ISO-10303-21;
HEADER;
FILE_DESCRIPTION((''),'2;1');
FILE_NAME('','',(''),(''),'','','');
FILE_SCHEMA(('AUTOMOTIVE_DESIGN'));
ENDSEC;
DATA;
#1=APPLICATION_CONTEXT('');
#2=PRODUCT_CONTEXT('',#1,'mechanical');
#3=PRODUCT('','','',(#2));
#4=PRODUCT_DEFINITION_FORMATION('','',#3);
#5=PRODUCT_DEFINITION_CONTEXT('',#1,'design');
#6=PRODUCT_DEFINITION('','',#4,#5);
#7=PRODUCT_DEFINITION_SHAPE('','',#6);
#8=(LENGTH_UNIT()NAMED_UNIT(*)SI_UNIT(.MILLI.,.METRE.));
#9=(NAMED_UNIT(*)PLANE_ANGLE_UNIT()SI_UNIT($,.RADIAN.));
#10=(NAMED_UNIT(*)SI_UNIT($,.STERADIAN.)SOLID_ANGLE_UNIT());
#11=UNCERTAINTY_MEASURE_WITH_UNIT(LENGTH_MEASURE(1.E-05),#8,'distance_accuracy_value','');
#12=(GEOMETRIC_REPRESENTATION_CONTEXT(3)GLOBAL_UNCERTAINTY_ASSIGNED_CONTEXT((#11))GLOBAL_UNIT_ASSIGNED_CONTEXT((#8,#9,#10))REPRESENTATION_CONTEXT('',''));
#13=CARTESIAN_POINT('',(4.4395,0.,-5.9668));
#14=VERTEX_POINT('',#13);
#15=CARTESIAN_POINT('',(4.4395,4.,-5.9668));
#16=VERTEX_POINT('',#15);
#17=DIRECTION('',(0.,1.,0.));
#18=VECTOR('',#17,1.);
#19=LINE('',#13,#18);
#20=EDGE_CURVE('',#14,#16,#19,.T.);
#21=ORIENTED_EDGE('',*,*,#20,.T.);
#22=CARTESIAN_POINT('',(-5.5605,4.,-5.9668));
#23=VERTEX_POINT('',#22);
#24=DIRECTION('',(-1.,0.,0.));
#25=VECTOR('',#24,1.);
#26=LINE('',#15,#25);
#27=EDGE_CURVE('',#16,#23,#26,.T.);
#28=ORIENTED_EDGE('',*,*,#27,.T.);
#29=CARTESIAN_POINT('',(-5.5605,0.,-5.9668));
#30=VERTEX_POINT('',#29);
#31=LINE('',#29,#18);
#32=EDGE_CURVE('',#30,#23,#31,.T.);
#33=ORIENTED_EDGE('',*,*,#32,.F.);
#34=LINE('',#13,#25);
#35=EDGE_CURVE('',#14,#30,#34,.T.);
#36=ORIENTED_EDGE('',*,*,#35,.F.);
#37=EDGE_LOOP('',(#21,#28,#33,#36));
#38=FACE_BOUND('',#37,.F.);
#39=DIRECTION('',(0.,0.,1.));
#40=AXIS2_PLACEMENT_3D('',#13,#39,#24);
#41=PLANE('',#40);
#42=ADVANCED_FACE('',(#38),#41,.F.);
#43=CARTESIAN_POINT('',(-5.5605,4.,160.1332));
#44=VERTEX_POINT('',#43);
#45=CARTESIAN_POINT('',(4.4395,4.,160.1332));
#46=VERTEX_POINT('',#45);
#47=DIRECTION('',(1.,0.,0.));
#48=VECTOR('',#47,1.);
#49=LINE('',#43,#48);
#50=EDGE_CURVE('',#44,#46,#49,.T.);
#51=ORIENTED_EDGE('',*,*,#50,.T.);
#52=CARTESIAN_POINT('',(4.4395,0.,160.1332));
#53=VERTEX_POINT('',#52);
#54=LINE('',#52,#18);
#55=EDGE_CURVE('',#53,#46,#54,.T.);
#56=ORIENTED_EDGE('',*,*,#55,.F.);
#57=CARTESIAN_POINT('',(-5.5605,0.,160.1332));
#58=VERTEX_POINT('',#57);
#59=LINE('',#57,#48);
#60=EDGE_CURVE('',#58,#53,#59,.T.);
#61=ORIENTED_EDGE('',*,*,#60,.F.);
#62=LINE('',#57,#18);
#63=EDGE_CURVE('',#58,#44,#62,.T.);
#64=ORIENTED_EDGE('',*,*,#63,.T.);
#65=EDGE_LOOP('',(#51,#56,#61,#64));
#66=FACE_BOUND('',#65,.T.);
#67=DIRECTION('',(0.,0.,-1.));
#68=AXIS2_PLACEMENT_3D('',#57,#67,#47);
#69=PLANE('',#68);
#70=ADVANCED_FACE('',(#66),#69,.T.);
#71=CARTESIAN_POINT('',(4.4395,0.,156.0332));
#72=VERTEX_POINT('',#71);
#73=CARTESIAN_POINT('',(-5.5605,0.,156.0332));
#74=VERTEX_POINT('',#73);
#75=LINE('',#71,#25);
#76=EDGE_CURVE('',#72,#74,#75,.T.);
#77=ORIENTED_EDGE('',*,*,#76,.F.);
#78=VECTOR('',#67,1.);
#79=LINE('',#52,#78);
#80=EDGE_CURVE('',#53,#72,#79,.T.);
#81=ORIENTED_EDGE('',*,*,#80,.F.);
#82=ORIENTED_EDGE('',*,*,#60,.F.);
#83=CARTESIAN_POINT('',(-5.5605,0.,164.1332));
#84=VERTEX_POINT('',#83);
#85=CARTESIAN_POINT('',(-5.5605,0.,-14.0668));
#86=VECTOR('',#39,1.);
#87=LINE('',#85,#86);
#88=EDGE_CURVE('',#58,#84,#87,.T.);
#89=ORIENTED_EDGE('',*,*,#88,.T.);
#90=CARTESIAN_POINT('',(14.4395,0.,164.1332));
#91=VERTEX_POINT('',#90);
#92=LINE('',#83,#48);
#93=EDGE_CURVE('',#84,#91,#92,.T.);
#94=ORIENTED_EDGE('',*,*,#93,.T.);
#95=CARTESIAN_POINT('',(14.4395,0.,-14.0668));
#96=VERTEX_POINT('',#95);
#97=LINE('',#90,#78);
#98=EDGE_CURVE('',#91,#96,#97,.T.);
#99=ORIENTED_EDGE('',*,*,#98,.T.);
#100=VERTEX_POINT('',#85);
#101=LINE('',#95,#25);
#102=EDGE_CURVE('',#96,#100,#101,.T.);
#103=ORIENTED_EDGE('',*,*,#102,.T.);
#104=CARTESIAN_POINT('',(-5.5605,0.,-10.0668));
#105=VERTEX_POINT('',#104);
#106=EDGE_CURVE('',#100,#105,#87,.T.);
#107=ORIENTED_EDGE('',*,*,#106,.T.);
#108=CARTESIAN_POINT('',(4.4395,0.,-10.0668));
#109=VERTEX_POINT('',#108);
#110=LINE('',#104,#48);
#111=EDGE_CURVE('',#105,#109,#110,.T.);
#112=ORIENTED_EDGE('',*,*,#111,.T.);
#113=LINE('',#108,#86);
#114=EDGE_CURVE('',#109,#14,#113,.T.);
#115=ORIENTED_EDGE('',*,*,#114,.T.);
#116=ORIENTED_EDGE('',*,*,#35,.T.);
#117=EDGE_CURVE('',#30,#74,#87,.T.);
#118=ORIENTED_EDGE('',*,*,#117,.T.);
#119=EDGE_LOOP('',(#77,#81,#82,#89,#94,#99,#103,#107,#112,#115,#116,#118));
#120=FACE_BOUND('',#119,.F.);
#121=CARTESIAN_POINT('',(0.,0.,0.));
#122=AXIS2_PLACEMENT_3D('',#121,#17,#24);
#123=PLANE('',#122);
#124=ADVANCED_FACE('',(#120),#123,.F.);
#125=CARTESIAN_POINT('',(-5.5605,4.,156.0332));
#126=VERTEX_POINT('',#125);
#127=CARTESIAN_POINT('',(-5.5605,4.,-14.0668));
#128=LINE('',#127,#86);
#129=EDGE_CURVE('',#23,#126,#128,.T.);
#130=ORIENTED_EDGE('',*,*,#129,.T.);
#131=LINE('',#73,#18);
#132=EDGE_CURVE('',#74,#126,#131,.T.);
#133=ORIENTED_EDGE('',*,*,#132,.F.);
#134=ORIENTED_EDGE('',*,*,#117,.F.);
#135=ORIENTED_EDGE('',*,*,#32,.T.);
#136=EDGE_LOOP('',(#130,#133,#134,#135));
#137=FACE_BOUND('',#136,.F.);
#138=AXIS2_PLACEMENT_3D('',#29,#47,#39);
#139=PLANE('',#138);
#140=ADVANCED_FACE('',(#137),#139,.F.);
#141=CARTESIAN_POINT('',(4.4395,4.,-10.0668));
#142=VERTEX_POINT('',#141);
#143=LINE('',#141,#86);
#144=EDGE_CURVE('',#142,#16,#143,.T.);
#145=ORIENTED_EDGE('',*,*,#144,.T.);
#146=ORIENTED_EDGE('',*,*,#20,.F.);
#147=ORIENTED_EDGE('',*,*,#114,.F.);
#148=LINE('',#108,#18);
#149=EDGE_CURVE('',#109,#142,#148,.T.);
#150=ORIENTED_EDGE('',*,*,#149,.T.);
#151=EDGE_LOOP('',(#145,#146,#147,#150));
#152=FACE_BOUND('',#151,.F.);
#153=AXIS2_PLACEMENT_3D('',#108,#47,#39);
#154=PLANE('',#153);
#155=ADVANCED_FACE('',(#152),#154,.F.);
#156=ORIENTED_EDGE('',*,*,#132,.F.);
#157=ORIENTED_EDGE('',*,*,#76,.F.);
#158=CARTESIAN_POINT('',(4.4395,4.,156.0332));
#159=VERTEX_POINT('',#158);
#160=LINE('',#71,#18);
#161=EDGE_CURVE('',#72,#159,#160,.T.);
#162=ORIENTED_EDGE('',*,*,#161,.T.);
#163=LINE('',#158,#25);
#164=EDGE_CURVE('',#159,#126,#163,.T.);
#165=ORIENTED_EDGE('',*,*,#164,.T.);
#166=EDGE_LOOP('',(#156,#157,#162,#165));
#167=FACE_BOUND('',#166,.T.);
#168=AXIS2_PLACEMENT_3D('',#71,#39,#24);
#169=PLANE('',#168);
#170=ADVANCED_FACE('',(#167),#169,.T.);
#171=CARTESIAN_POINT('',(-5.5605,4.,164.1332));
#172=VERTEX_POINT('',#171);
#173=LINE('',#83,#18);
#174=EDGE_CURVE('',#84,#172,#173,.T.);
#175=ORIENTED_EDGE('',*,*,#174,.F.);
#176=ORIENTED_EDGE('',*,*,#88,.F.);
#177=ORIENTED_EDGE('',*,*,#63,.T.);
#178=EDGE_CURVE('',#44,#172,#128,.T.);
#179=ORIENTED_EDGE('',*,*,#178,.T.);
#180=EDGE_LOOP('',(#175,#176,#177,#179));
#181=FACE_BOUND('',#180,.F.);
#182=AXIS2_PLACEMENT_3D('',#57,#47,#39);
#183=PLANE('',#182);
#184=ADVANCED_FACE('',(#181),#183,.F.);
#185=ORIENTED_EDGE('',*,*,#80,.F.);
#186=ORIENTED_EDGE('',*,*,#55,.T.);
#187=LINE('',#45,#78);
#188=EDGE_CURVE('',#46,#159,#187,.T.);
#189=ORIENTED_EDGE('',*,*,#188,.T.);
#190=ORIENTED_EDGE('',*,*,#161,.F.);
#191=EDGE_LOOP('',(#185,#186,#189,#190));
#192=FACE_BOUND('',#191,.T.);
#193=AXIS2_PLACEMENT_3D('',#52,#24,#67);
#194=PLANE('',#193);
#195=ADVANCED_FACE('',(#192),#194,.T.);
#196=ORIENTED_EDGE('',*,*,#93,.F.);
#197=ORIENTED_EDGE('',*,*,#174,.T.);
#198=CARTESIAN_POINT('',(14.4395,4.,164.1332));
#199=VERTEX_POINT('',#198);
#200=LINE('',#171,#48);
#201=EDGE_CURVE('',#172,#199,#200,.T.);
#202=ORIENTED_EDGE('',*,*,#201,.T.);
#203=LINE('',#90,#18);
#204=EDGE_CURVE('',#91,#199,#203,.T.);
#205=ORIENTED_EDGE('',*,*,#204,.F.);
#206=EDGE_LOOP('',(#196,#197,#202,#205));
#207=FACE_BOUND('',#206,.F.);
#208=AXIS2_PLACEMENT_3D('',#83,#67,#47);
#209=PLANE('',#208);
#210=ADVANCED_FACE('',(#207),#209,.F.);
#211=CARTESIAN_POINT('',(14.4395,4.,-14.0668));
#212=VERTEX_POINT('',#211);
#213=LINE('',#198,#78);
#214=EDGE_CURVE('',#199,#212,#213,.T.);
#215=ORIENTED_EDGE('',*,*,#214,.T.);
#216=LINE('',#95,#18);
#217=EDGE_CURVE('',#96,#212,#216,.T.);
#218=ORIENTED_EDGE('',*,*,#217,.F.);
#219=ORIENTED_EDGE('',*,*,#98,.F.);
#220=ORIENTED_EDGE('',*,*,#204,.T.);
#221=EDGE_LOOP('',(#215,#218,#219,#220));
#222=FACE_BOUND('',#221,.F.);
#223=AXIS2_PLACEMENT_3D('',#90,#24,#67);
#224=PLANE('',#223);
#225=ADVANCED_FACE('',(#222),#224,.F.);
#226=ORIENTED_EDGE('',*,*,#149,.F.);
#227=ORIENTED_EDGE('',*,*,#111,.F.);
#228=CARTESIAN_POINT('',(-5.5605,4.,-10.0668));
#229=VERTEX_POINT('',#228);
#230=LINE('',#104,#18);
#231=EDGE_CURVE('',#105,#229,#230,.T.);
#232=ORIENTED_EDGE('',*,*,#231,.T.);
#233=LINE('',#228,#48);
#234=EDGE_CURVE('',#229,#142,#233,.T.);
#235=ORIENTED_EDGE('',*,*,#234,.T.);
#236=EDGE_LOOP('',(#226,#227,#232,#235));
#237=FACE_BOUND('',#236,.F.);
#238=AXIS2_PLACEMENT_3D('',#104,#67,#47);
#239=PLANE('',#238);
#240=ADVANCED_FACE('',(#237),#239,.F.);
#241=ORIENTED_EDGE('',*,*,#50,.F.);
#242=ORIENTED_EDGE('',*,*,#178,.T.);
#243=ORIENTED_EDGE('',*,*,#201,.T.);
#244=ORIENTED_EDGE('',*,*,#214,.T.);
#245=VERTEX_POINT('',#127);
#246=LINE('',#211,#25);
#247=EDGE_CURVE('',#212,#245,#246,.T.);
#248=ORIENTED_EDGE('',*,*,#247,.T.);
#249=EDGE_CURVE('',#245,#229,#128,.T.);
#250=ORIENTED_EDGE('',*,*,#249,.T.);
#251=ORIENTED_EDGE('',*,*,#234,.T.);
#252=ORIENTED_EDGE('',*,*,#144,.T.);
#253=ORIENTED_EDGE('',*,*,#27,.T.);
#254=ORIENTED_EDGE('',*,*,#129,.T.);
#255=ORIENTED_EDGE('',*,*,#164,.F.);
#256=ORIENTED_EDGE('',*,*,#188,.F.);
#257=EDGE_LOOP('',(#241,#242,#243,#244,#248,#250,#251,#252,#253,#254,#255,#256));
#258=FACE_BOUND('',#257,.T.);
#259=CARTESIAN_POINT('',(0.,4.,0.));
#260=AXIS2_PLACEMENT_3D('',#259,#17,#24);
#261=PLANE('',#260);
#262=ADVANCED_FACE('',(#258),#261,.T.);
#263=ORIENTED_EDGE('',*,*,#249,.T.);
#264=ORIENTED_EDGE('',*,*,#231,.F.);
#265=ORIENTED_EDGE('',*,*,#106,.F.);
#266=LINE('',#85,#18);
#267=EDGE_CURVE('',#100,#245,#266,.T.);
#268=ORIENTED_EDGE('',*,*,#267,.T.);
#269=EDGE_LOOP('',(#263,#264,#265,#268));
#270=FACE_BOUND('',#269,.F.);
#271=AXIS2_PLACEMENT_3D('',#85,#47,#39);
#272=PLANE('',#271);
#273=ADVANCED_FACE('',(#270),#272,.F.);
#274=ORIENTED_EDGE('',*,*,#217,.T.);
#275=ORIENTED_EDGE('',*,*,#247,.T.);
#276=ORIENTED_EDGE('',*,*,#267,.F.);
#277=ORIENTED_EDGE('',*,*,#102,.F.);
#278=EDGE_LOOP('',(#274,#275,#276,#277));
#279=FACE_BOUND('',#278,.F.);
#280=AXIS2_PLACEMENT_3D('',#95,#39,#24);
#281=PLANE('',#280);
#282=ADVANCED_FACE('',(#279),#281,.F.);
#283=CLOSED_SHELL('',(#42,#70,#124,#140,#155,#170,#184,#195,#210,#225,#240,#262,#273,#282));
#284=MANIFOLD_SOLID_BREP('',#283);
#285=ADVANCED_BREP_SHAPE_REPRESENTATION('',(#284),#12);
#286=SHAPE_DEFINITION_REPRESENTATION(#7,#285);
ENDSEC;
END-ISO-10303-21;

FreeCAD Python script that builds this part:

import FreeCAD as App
import Part
import Sketcher

V = App.Vector

doc = App.newDocument("Part")
body = doc.addObject("PartDesign::Body", "Body")

# Sketch on XZ plane
sketch1 = body.newObject("Sketcher::SketchObject", "Sketch")
sketch1.AttachmentSupport = (doc.getObject("XZ_Plane"), [""])
sketch1.MapMode = "FlatFace"
sketch1.addGeometry(Part.LineSegment(V(-5.6, 160.1, 0), V(-5.6, 164.1, 0)), False)
sketch1.addGeometry(Part.LineSegment(V(-5.6, 164.1, 0), V(14.4, 164.1, 0)), False)
sketch1.addGeometry(Part.LineSegment(V(14.4, 164.1, 0), V(14.4, -14.1, 0)), False)
sketch1.addGeometry(Part.LineSegment(V(14.4, -14.1, 0), V(-5.6, -14.1, 0)), False)
sketch1.addGeometry(Part.LineSegment(V(-5.6, -14.1, 0), V(-5.6, -10.1, 0)), False)
sketch1.addGeometry(Part.LineSegment(V(-5.6, -10.1, 0), V(4.4, -10.1, 0)), False)
sketch1.addGeometry(Part.LineSegment(V(4.4, -10.1, 0), V(4.4, -6, 0)), False)
sketch1.addGeometry(Part.LineSegment(V(4.4, -6, 0), V(-5.6, -6, 0)), False)
sketch1.addGeometry(Part.LineSegment(V(-5.6, -6, 0), V(-5.6, 156, 0)), False)
sketch1.addGeometry(Part.LineSegment(V(-5.6, 156, 0), V(4.4, 156, 0)), False)
sketch1.addGeometry(Part.LineSegment(V(4.4, 156, 0), V(4.4, 160.1, 0)), False)
sketch1.addGeometry(Part.LineSegment(V(4.4, 160.1, 0), V(-5.6, 160.1, 0)), False)
sketch1.addConstraint(Sketcher.Constraint("Coincident", 0, 2, 1, 1))
sketch1.addConstraint(Sketcher.Constraint("Coincident", 1, 2, 2, 1))
sketch1.addConstraint(Sketcher.Constraint("Coincident", 2, 2, 3, 1))
sketch1.addConstraint(Sketcher.Constraint("Coincident", 3, 2, 4, 1))
sketch1.addConstraint(Sketcher.Constraint("Coincident", 4, 2, 5, 1))
sketch1.addConstraint(Sketcher.Constraint("Coincident", 5, 2, 6, 1))
sketch1.addConstraint(Sketcher.Constraint("Coincident", 6, 2, 7, 1))
sketch1.addConstraint(Sketcher.Constraint("Coincident", 7, 2, 8, 1))
sketch1.addConstraint(Sketcher.Constraint("Coincident", 8, 2, 9, 1))
sketch1.addConstraint(Sketcher.Constraint("Coincident", 9, 2, 10, 1))
sketch1.addConstraint(Sketcher.Constraint("Coincident", 10, 2, 11, 1))
sketch1.addConstraint(Sketcher.Constraint("Coincident", 11, 2, 0, 1))
sketch1.addConstraint(Sketcher.Constraint("Vertical", 0))
sketch1.addConstraint(Sketcher.Constraint("Horizontal", 1))
sketch1.addConstraint(Sketcher.Constraint("Vertical", 2))
sketch1.addConstraint(Sketcher.Constraint("Horizontal", 3))
sketch1.addConstraint(Sketcher.Constraint("Vertical", 4))
sketch1.addConstraint(Sketcher.Constraint("Horizontal", 5))
sketch1.addConstraint(Sketcher.Constraint("Vertical", 6))
sketch1.addConstraint(Sketcher.Constraint("Horizontal", 7))
sketch1.addConstraint(Sketcher.Constraint("Vertical", 8))
sketch1.addConstraint(Sketcher.Constraint("Horizontal", 9))
sketch1.addConstraint(Sketcher.Constraint("Vertical", 10))
sketch1.addConstraint(Sketcher.Constraint("Horizontal", 11))
sketch1.addConstraint(Sketcher.Constraint("Vertical", 0, 2, 3, 2))
sketch1.addConstraint(Sketcher.Constraint("Vertical", 4, 2, 7, 2))
sketch1.addConstraint(Sketcher.Constraint("Vertical", 6, 2, 9, 2))
sketch1.addConstraint(Sketcher.Constraint("Equal", 0, 4))
sketch1.addConstraint(Sketcher.Constraint("Equal", 6, 10))
sketch1.addConstraint(Sketcher.Constraint("DistanceX", 1, 1, 1, 2, 20.0))
sketch1.addConstraint(Sketcher.Constraint("DistanceX", 5, 1, 5, 2, 10.0))
sketch1.addConstraint(Sketcher.Constraint("DistanceY", 0, 1, 0, 2, 4.0))
sketch1.addConstraint(Sketcher.Constraint("DistanceY", 2, 2, 2, 1, 178.2))
sketch1.addConstraint(Sketcher.Constraint("DistanceY", 6, 1, 6, 2, 4.1))
sketch1.addConstraint(Sketcher.Constraint("DistanceX", 0, 2, -1, 1, 5.5605))
sketch1.addConstraint(Sketcher.Constraint("DistanceY", -1, 1, 0, 2, 164.1332))
pad1 = body.newObject("PartDesign::Pad", "Pad")
pad1.Profile = sketch1
pad1.Length = 4
pad1.Reversed = True

doc.recompute()
